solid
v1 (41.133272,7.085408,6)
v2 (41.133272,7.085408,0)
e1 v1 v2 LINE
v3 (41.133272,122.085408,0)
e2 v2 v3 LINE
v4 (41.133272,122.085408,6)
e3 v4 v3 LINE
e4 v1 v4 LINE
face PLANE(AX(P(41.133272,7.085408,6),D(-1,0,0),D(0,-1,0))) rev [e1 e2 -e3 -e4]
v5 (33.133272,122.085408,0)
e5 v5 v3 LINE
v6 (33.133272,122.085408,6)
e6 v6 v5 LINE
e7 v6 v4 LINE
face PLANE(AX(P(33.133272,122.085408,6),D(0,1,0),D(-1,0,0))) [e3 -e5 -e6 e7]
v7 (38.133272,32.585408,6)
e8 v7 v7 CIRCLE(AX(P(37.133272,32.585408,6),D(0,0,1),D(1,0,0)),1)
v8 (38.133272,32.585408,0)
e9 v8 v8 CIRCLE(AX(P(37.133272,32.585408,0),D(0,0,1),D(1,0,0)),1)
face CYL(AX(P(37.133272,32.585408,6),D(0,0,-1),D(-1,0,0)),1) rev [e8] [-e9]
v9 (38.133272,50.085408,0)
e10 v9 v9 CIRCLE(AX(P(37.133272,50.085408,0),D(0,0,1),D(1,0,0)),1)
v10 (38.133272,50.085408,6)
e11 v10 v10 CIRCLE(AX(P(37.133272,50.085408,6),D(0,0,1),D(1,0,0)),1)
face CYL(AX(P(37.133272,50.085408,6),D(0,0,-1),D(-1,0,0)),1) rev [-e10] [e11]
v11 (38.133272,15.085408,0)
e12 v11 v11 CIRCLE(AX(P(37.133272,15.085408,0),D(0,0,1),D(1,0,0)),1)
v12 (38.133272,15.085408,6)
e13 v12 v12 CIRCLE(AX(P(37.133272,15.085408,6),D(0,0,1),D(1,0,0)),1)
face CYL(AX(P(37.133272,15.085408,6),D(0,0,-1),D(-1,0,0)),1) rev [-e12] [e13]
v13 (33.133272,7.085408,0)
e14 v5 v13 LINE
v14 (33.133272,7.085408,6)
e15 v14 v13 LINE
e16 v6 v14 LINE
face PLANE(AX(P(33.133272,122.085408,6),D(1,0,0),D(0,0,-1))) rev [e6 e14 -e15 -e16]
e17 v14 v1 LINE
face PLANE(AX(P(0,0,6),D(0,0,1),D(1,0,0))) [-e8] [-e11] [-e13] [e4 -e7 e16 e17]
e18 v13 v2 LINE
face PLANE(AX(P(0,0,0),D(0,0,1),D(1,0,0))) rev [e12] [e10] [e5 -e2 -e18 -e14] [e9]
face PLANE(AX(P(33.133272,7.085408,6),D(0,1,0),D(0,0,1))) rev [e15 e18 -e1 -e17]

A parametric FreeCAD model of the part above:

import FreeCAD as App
import Part
import Sketcher
from FreeCAD import Vector


def add_polygon(sketch, points):
    """Adds a closed chain of lines whose ends are joined by coincident constraints."""
    first, n = sketch.GeometryCount, len(points)
    for a, b in zip(points, points[1:] + points[:1]):
        sketch.addGeometry(Part.LineSegment(App.Vector(*a, 0), App.Vector(*b, 0)), False)
    for i in range(n):
        sketch.addConstraint(Sketcher.Constraint("Coincident", first + i, 2, first + (i + 1) % n, 1))

doc = App.newDocument("Part")
body = doc.addObject("PartDesign::Body", "Body")

# Sketch on XY plane
sketch1 = body.newObject("Sketcher::SketchObject", "Sketch")
sketch1.AttachmentSupport = (doc.getObject("XY_Plane"), [""])
sketch1.MapMode = "FlatFace"
add_polygon(sketch1, [(33.133272, 122.085408), (33.133272, 7.085408), (41.133272, 7.085408), (41.133272, 122.085408)])  # lines 0-3
sketch1.addGeometry(Part.Circle(Vector(37.133272, 15.085408, 0), Vector(0, 0, 1), 1), False)  # 4
sketch1.addGeometry(Part.Circle(Vector(37.133272, 32.585408, 0), Vector(0, 0, 1), 1), False)  # 5
sketch1.addGeometry(Part.Circle(Vector(37.133272, 50.085408, 0), Vector(0, 0, 1), 1), False)  # 6
sketch1.addConstraint(Sketcher.Constraint("Vertical", 0))
sketch1.addConstraint(Sketcher.Constraint("Horizontal", 1))
sketch1.addConstraint(Sketcher.Constraint("Vertical", 2))
sketch1.addConstraint(Sketcher.Constraint("Horizontal", 3))
sketch1.addConstraint(Sketcher.Constraint("Equal", 4, 5))
sketch1.addConstraint(Sketcher.Constraint("Equal", 5, 6))
sketch1.addConstraint(Sketcher.Constraint("Vertical", 4, 3, 5, 3))
sketch1.addConstraint(Sketcher.Constraint("Vertical", 5, 3, 6, 3))
sketch1.addConstraint(Sketcher.Constraint("Diameter", 4, 2.0))
sketch1.addConstraint(Sketcher.Constraint("DistanceX", 1, 1, 1, 2, 8.0))
sketch1.addConstraint(Sketcher.Constraint("DistanceY", 0, 2, 0, 1, 115.0))
sketch1.addConstraint(Sketcher.Constraint("DistanceY", 4, 3, 6, 3, 35.0))
sketch1.addConstraint(Sketcher.Constraint("DistanceX", 0, 2, 4, 3, 4.0))
sketch1.addConstraint(Sketcher.Constraint("DistanceY", 0, 2, 4, 3, 8.0))
sketch1.addConstraint(Sketcher.Constraint("DistanceY", 4, 3, 5, 3, 17.5))
sketch1.addConstraint(Sketcher.Constraint("DistanceY", -1, 1, 4, 3, 15.085408))
sketch1.addConstraint(Sketcher.Constraint("DistanceX", -1, 1, 4, 3, 37.133272))
pad1 = body.newObject("PartDesign::Pad", "Pad")
pad1.Profile = sketch1
pad1.Length = 6

doc.recompute()
